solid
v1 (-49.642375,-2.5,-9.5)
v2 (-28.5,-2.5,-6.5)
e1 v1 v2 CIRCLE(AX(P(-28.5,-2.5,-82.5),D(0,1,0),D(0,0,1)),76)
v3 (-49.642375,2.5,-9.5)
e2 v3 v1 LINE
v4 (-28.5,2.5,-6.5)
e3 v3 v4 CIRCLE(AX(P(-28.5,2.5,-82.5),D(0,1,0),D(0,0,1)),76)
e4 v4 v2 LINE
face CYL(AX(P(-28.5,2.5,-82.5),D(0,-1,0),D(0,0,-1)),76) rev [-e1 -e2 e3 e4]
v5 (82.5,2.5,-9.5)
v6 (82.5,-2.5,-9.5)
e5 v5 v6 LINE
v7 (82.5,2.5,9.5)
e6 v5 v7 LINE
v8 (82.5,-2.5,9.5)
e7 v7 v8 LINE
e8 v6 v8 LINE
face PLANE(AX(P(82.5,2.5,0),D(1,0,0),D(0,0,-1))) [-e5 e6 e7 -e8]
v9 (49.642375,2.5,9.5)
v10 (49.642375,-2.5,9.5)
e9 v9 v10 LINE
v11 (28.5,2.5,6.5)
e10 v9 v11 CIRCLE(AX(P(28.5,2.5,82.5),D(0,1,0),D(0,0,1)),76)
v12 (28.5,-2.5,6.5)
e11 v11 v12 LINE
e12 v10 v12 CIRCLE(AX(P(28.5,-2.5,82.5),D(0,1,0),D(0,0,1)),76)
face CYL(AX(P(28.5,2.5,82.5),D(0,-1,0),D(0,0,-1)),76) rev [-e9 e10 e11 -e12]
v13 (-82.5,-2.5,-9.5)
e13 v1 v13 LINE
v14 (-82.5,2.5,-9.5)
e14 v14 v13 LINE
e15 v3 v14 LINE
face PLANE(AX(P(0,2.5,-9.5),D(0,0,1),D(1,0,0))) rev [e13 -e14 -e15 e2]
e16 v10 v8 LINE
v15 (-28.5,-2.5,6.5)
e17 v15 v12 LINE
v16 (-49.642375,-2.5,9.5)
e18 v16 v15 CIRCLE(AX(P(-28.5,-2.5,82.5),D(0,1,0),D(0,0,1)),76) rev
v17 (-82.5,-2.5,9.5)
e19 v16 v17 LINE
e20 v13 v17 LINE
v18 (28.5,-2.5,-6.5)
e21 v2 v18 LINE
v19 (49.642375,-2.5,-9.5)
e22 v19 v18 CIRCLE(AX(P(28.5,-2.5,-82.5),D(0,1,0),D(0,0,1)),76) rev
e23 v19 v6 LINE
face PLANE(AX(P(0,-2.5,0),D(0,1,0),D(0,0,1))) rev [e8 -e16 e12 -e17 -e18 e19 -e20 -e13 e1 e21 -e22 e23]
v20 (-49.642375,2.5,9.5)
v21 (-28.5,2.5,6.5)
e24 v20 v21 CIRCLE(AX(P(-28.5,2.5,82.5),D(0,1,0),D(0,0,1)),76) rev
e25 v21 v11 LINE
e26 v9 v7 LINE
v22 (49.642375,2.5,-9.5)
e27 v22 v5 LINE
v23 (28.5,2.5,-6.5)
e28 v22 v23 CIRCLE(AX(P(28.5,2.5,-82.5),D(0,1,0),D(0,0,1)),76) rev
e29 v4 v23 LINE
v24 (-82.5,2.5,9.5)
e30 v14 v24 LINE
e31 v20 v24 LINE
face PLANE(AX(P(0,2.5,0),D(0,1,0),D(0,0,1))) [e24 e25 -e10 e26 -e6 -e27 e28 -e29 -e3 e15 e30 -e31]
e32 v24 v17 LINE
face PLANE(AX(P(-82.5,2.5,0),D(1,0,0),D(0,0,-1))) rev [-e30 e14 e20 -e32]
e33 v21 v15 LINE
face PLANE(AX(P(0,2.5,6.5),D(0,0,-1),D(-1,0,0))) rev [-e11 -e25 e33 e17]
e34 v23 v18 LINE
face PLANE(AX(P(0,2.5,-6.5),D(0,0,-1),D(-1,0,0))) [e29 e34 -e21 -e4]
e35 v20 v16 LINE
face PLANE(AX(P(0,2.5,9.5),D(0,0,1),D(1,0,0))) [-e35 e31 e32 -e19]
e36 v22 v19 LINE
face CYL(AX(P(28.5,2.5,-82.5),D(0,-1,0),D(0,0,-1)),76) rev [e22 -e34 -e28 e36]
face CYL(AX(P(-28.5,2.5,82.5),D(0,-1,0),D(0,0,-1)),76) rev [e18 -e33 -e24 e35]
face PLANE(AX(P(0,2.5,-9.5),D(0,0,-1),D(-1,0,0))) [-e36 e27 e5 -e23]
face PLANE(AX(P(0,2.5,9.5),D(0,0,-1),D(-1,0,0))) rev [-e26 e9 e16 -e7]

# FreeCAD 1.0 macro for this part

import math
import FreeCAD as App
import Part
import Sketcher

doc = App.newDocument("Part")
body = doc.addObject("PartDesign::Body", "Body")

sketch1 = body.newObject("Sketcher::SketchObject", "Sketch")
sketch1.AttachmentSupport = (doc.getObject("XZ_Plane"), [""])
sketch1.MapMode = "FlatFace"
sketch1.addGeometry([
    Part.LineSegment(App.Vector(-82, 10, 0), App.Vector(-50, 10, 0)),
    Part.ArcOfCircle(Part.Circle(App.Vector(-29, 82, 0), App.Vector(0, 0, 1), 76), math.radians(-106.15), math.radians(-90)),
    Part.LineSegment(App.Vector(-28, 6, 0), App.Vector(28, 6, 0)),
    Part.ArcOfCircle(Part.Circle(App.Vector(29, 82, 0), App.Vector(0, 0, 1), 76), math.radians(-90), math.radians(-73.85)),
    Part.LineSegment(App.Vector(50, 10, 0), App.Vector(82, 10, 0)),
    Part.LineSegment(App.Vector(82, 10, 0), App.Vector(82, -10, 0)),
    Part.LineSegment(App.Vector(82, -10, 0), App.Vector(50, -10, 0)),
    Part.ArcOfCircle(Part.Circle(App.Vector(29, -82, 0), App.Vector(0, 0, 1), 76), math.radians(73.85), math.radians(90)),
    Part.LineSegment(App.Vector(28, -6, 0), App.Vector(-28, -6, 0)),
    Part.ArcOfCircle(Part.Circle(App.Vector(-29, -82, 0), App.Vector(0, 0, 1), 76), math.radians(90), math.radians(106.15)),
    Part.LineSegment(App.Vector(-50, -10, 0), App.Vector(-82, -10, 0)),
    Part.LineSegment(App.Vector(-82, -10, 0), App.Vector(-82, 10, 0)),
], False)
sketch1.addConstraint([
    Sketcher.Constraint("Coincident", 0, 2, 1, 1),
    Sketcher.Constraint("Tangent", 1, 2, 2, 1),
    Sketcher.Constraint("Tangent", 2, 2, 3, 1),
    Sketcher.Constraint("Coincident", 3, 2, 4, 1),
    Sketcher.Constraint("Coincident", 4, 2, 5, 1),
    Sketcher.Constraint("Coincident", 5, 2, 6, 1),
    Sketcher.Constraint("Coincident", 6, 2, 7, 1),
    Sketcher.Constraint("Tangent", 7, 2, 8, 1),
    Sketcher.Constraint("Tangent", 8, 2, 9, 1),
    Sketcher.Constraint("Coincident", 9, 2, 10, 1),
    Sketcher.Constraint("Coincident", 10, 2, 11, 1),
    Sketcher.Constraint("Coincident", 11, 2, 0, 1),
    Sketcher.Constraint("Horizontal", 0),
    Sketcher.Constraint("Horizontal", 2),
    Sketcher.Constraint("Horizontal", 4),
    Sketcher.Constraint("Vertical", 5),
    Sketcher.Constraint("Horizontal", 6),
    Sketcher.Constraint("Horizontal", 8),
    Sketcher.Constraint("Horizontal", 10),
    Sketcher.Constraint("Vertical", 11),
    Sketcher.Constraint("Equal", 1, 3),
    Sketcher.Constraint("Equal", 3, 7),
    Sketcher.Constraint("Equal", 7, 9),
    Sketcher.Constraint("Symmetric", 1, 3, 7, 3, -1, 1),
    Sketcher.Constraint("Symmetric", 3, 2, 9, 2, -1, 1),
    Sketcher.Constraint("Symmetric", 5, 2, 11, 2, -1, 1),
    Sketcher.Constraint("Symmetric", 0, 2, 3, 2, -2),
    Sketcher.Constraint("Radius", 1, 76.0),
    Sketcher.Constraint("DistanceX", 2, 1, 2, 2, 57.0),
    Sketcher.Constraint("DistanceY", 5, 2, 5, 1, 19.0),
    Sketcher.Constraint("DistanceY", 7, 3, 3, 3, 165.0),
    Sketcher.Constraint("DistanceX", 2, 2, 4, 2, 54.0),
])
pad1 = body.newObject("PartDesign::Pad", "Pad")
pad1.Profile = sketch1
pad1.Length = 5
pad1.Midplane = True

doc.recompute()
